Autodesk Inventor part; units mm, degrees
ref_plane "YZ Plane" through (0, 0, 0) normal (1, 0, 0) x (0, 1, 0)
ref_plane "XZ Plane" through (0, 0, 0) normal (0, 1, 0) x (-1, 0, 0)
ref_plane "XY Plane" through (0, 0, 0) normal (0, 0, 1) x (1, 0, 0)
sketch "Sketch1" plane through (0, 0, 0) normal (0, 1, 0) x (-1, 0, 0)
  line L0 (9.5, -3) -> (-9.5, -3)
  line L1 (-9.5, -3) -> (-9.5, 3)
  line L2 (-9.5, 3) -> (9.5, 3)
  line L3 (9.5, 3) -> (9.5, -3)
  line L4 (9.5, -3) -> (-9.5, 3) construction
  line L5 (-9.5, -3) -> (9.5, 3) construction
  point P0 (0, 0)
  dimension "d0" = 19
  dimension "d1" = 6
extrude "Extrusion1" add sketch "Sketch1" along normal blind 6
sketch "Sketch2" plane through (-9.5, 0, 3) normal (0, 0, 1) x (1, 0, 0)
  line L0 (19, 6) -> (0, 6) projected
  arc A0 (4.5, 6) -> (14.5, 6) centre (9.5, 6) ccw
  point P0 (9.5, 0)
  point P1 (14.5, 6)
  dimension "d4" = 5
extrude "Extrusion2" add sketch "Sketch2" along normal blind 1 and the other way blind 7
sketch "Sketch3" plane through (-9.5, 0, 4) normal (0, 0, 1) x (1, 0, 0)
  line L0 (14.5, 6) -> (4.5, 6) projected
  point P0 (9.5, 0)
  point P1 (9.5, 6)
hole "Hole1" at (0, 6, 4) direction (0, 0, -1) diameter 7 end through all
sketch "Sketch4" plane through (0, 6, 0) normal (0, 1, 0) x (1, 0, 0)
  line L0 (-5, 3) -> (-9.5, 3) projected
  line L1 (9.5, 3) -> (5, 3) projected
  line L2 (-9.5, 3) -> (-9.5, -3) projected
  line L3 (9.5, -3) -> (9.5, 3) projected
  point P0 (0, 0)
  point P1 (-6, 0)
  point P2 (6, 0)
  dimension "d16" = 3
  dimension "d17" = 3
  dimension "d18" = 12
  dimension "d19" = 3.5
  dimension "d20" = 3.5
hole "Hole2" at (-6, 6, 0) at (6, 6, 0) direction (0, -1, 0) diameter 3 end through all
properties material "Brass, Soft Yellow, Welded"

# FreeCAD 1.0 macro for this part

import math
import FreeCAD as App
import Part
import Sketcher

V = App.Vector
Q = App.Units.Quantity

doc = App.newDocument("Part")
body = doc.addObject("PartDesign::Body", "Body")

# Sketch on XZ plane
sketch1 = body.newObject("Sketcher::SketchObject", "Sketch")
sketch1.AttachmentSupport = (doc.getObject("XZ_Plane"), [""])
sketch1.MapMode = "FlatFace"
sketch1.addGeometry(Part.LineSegment(V(9.5, -3, 0), V(-9.5, -3, 0)), False)
sketch1.addGeometry(Part.LineSegment(V(-9.5, -3, 0), V(-9.5, 3, 0)), False)
sketch1.addGeometry(Part.LineSegment(V(-9.5, 3, 0), V(9.5, 3, 0)), False)
sketch1.addGeometry(Part.LineSegment(V(9.5, 3, 0), V(9.5, -3, 0)), False)
sketch1.addConstraint(Sketcher.Constraint("Coincident", 0, 2, 1, 1))
sketch1.addConstraint(Sketcher.Constraint("Coincident", 1, 2, 2, 1))
sketch1.addConstraint(Sketcher.Constraint("Coincident", 2, 2, 3, 1))
sketch1.addConstraint(Sketcher.Constraint("Coincident", 3, 2, 0, 1))
sketch1.addConstraint(Sketcher.Constraint("Horizontal", 0))
sketch1.addConstraint(Sketcher.Constraint("Vertical", 1))
sketch1.addConstraint(Sketcher.Constraint("Horizontal", 2))
sketch1.addConstraint(Sketcher.Constraint("Vertical", 3))
sketch1.addConstraint(Sketcher.Constraint("Symmetric", 0, 2, 2, 2, -1, 1))
sketch1.addConstraint(Sketcher.Constraint("DistanceX", 0, 2, 0, 1, Q("19 mm")))
sketch1.addConstraint(Sketcher.Constraint("DistanceY", 1, 1, 1, 2, Q("6 mm")))
pad1 = body.newObject("PartDesign::Pad", "Pad")
pad1.Profile = sketch1
pad1.Length = 6
pad1.Reversed = True

# Sketch on XY plane
sketch2 = body.newObject("Sketcher::SketchObject", "Sketch001")
sketch2.AttachmentSupport = (doc.getObject("XY_Plane"), [""])
sketch2.MapMode = "FlatFace"
sketch2.AttachmentOffset = App.Placement(V(0, 0, 3), App.Rotation())
sketch2.addGeometry(Part.ArcOfCircle(Part.Circle(V(0, 6, 0), V(0, 0, 1), 5), math.radians(180), math.radians(360)), False)
sketch2.addGeometry(Part.LineSegment(V(5, 6, 0), V(-5, 6, 0)), False)
sketch2.addConstraint(Sketcher.Constraint("Coincident", 0, 1, 1, 2))
sketch2.addConstraint(Sketcher.Constraint("Coincident", 1, 1, 0, 2))
sketch2.addConstraint(Sketcher.Constraint("Horizontal", 1))
sketch2.addConstraint(Sketcher.Constraint("PointOnObject", 0, 3, -2))
sketch2.addConstraint(Sketcher.Constraint("Radius", 0, Q("5 mm")))
sketch2.addConstraint(Sketcher.Constraint("DistanceY", -1, 1, 0, 3, Q("6 mm")))
sketch2.addConstraint(Sketcher.Constraint("DistanceY", -1, 1, 0, 1, Q("6 mm")))
pad2 = body.newObject("PartDesign::Pad", "Pad001")
pad2.Profile = sketch2
pad2.Type = "TwoLengths"
pad2.Length = 1
pad2.Length2 = 7

# Sketch on XY plane
sketch3 = body.newObject("Sketcher::SketchObject", "Sketch002")
sketch3.AttachmentSupport = (doc.getObject("XY_Plane"), [""])
sketch3.MapMode = "FlatFace"
sketch3.AttachmentOffset = App.Placement(V(0, 0, 4), App.Rotation())
sketch3.addGeometry(Part.Circle(V(0, 6, 0), V(0, 0, 1), 3.5), False)
sketch3.addConstraint(Sketcher.Constraint("PointOnObject", 0, 3, -2))
sketch3.addConstraint(Sketcher.Constraint("Diameter", 0, Q("7 mm")))
sketch3.addConstraint(Sketcher.Constraint("DistanceY", -1, 1, 0, 3, Q("6 mm")))
doc.recompute()
hole = body.newObject("PartDesign::Hole", "Hole")
hole.Profile = sketch3
hole.ThreadType = "None"
hole.Diameter = 7
hole.DepthType = "ThroughAll"

# Sketch on XZ plane
sketch4 = body.newObject("Sketcher::SketchObject", "Sketch003")
sketch4.AttachmentSupport = (doc.getObject("XZ_Plane"), [""])
sketch4.MapMode = "FlatFace"
sketch4.AttachmentOffset = App.Placement(V(0, 0, -6), App.Rotation())
sketch4.addGeometry(Part.Circle(V(-6, 0, 0), V(0, 0, 1), 1.5), False)
sketch4.addGeometry(Part.Circle(V(6, 0, 0), V(0, 0, 1), 1.5), False)
sketch4.addConstraint(Sketcher.Constraint("Equal", 0, 1))
sketch4.addConstraint(Sketcher.Constraint("Symmetric", 0, 3, 1, 3, -1, 1))
sketch4.addConstraint(Sketcher.Constraint("PointOnObject", 0, 3, -1))
sketch4.addConstraint(Sketcher.Constraint("Diameter", 0, Q("3 mm")))
sketch4.addConstraint(Sketcher.Constraint("DistanceX", 0, 3, -1, 1, Q("6 mm")))
doc.recompute()
hole2 = body.newObject("PartDesign::Hole", "Hole001")
hole2.Profile = sketch4
hole2.ThreadType = "None"
hole2.Diameter = 3
hole2.DepthType = "ThroughAll"
hole2.Reversed = True

doc.recompute()
